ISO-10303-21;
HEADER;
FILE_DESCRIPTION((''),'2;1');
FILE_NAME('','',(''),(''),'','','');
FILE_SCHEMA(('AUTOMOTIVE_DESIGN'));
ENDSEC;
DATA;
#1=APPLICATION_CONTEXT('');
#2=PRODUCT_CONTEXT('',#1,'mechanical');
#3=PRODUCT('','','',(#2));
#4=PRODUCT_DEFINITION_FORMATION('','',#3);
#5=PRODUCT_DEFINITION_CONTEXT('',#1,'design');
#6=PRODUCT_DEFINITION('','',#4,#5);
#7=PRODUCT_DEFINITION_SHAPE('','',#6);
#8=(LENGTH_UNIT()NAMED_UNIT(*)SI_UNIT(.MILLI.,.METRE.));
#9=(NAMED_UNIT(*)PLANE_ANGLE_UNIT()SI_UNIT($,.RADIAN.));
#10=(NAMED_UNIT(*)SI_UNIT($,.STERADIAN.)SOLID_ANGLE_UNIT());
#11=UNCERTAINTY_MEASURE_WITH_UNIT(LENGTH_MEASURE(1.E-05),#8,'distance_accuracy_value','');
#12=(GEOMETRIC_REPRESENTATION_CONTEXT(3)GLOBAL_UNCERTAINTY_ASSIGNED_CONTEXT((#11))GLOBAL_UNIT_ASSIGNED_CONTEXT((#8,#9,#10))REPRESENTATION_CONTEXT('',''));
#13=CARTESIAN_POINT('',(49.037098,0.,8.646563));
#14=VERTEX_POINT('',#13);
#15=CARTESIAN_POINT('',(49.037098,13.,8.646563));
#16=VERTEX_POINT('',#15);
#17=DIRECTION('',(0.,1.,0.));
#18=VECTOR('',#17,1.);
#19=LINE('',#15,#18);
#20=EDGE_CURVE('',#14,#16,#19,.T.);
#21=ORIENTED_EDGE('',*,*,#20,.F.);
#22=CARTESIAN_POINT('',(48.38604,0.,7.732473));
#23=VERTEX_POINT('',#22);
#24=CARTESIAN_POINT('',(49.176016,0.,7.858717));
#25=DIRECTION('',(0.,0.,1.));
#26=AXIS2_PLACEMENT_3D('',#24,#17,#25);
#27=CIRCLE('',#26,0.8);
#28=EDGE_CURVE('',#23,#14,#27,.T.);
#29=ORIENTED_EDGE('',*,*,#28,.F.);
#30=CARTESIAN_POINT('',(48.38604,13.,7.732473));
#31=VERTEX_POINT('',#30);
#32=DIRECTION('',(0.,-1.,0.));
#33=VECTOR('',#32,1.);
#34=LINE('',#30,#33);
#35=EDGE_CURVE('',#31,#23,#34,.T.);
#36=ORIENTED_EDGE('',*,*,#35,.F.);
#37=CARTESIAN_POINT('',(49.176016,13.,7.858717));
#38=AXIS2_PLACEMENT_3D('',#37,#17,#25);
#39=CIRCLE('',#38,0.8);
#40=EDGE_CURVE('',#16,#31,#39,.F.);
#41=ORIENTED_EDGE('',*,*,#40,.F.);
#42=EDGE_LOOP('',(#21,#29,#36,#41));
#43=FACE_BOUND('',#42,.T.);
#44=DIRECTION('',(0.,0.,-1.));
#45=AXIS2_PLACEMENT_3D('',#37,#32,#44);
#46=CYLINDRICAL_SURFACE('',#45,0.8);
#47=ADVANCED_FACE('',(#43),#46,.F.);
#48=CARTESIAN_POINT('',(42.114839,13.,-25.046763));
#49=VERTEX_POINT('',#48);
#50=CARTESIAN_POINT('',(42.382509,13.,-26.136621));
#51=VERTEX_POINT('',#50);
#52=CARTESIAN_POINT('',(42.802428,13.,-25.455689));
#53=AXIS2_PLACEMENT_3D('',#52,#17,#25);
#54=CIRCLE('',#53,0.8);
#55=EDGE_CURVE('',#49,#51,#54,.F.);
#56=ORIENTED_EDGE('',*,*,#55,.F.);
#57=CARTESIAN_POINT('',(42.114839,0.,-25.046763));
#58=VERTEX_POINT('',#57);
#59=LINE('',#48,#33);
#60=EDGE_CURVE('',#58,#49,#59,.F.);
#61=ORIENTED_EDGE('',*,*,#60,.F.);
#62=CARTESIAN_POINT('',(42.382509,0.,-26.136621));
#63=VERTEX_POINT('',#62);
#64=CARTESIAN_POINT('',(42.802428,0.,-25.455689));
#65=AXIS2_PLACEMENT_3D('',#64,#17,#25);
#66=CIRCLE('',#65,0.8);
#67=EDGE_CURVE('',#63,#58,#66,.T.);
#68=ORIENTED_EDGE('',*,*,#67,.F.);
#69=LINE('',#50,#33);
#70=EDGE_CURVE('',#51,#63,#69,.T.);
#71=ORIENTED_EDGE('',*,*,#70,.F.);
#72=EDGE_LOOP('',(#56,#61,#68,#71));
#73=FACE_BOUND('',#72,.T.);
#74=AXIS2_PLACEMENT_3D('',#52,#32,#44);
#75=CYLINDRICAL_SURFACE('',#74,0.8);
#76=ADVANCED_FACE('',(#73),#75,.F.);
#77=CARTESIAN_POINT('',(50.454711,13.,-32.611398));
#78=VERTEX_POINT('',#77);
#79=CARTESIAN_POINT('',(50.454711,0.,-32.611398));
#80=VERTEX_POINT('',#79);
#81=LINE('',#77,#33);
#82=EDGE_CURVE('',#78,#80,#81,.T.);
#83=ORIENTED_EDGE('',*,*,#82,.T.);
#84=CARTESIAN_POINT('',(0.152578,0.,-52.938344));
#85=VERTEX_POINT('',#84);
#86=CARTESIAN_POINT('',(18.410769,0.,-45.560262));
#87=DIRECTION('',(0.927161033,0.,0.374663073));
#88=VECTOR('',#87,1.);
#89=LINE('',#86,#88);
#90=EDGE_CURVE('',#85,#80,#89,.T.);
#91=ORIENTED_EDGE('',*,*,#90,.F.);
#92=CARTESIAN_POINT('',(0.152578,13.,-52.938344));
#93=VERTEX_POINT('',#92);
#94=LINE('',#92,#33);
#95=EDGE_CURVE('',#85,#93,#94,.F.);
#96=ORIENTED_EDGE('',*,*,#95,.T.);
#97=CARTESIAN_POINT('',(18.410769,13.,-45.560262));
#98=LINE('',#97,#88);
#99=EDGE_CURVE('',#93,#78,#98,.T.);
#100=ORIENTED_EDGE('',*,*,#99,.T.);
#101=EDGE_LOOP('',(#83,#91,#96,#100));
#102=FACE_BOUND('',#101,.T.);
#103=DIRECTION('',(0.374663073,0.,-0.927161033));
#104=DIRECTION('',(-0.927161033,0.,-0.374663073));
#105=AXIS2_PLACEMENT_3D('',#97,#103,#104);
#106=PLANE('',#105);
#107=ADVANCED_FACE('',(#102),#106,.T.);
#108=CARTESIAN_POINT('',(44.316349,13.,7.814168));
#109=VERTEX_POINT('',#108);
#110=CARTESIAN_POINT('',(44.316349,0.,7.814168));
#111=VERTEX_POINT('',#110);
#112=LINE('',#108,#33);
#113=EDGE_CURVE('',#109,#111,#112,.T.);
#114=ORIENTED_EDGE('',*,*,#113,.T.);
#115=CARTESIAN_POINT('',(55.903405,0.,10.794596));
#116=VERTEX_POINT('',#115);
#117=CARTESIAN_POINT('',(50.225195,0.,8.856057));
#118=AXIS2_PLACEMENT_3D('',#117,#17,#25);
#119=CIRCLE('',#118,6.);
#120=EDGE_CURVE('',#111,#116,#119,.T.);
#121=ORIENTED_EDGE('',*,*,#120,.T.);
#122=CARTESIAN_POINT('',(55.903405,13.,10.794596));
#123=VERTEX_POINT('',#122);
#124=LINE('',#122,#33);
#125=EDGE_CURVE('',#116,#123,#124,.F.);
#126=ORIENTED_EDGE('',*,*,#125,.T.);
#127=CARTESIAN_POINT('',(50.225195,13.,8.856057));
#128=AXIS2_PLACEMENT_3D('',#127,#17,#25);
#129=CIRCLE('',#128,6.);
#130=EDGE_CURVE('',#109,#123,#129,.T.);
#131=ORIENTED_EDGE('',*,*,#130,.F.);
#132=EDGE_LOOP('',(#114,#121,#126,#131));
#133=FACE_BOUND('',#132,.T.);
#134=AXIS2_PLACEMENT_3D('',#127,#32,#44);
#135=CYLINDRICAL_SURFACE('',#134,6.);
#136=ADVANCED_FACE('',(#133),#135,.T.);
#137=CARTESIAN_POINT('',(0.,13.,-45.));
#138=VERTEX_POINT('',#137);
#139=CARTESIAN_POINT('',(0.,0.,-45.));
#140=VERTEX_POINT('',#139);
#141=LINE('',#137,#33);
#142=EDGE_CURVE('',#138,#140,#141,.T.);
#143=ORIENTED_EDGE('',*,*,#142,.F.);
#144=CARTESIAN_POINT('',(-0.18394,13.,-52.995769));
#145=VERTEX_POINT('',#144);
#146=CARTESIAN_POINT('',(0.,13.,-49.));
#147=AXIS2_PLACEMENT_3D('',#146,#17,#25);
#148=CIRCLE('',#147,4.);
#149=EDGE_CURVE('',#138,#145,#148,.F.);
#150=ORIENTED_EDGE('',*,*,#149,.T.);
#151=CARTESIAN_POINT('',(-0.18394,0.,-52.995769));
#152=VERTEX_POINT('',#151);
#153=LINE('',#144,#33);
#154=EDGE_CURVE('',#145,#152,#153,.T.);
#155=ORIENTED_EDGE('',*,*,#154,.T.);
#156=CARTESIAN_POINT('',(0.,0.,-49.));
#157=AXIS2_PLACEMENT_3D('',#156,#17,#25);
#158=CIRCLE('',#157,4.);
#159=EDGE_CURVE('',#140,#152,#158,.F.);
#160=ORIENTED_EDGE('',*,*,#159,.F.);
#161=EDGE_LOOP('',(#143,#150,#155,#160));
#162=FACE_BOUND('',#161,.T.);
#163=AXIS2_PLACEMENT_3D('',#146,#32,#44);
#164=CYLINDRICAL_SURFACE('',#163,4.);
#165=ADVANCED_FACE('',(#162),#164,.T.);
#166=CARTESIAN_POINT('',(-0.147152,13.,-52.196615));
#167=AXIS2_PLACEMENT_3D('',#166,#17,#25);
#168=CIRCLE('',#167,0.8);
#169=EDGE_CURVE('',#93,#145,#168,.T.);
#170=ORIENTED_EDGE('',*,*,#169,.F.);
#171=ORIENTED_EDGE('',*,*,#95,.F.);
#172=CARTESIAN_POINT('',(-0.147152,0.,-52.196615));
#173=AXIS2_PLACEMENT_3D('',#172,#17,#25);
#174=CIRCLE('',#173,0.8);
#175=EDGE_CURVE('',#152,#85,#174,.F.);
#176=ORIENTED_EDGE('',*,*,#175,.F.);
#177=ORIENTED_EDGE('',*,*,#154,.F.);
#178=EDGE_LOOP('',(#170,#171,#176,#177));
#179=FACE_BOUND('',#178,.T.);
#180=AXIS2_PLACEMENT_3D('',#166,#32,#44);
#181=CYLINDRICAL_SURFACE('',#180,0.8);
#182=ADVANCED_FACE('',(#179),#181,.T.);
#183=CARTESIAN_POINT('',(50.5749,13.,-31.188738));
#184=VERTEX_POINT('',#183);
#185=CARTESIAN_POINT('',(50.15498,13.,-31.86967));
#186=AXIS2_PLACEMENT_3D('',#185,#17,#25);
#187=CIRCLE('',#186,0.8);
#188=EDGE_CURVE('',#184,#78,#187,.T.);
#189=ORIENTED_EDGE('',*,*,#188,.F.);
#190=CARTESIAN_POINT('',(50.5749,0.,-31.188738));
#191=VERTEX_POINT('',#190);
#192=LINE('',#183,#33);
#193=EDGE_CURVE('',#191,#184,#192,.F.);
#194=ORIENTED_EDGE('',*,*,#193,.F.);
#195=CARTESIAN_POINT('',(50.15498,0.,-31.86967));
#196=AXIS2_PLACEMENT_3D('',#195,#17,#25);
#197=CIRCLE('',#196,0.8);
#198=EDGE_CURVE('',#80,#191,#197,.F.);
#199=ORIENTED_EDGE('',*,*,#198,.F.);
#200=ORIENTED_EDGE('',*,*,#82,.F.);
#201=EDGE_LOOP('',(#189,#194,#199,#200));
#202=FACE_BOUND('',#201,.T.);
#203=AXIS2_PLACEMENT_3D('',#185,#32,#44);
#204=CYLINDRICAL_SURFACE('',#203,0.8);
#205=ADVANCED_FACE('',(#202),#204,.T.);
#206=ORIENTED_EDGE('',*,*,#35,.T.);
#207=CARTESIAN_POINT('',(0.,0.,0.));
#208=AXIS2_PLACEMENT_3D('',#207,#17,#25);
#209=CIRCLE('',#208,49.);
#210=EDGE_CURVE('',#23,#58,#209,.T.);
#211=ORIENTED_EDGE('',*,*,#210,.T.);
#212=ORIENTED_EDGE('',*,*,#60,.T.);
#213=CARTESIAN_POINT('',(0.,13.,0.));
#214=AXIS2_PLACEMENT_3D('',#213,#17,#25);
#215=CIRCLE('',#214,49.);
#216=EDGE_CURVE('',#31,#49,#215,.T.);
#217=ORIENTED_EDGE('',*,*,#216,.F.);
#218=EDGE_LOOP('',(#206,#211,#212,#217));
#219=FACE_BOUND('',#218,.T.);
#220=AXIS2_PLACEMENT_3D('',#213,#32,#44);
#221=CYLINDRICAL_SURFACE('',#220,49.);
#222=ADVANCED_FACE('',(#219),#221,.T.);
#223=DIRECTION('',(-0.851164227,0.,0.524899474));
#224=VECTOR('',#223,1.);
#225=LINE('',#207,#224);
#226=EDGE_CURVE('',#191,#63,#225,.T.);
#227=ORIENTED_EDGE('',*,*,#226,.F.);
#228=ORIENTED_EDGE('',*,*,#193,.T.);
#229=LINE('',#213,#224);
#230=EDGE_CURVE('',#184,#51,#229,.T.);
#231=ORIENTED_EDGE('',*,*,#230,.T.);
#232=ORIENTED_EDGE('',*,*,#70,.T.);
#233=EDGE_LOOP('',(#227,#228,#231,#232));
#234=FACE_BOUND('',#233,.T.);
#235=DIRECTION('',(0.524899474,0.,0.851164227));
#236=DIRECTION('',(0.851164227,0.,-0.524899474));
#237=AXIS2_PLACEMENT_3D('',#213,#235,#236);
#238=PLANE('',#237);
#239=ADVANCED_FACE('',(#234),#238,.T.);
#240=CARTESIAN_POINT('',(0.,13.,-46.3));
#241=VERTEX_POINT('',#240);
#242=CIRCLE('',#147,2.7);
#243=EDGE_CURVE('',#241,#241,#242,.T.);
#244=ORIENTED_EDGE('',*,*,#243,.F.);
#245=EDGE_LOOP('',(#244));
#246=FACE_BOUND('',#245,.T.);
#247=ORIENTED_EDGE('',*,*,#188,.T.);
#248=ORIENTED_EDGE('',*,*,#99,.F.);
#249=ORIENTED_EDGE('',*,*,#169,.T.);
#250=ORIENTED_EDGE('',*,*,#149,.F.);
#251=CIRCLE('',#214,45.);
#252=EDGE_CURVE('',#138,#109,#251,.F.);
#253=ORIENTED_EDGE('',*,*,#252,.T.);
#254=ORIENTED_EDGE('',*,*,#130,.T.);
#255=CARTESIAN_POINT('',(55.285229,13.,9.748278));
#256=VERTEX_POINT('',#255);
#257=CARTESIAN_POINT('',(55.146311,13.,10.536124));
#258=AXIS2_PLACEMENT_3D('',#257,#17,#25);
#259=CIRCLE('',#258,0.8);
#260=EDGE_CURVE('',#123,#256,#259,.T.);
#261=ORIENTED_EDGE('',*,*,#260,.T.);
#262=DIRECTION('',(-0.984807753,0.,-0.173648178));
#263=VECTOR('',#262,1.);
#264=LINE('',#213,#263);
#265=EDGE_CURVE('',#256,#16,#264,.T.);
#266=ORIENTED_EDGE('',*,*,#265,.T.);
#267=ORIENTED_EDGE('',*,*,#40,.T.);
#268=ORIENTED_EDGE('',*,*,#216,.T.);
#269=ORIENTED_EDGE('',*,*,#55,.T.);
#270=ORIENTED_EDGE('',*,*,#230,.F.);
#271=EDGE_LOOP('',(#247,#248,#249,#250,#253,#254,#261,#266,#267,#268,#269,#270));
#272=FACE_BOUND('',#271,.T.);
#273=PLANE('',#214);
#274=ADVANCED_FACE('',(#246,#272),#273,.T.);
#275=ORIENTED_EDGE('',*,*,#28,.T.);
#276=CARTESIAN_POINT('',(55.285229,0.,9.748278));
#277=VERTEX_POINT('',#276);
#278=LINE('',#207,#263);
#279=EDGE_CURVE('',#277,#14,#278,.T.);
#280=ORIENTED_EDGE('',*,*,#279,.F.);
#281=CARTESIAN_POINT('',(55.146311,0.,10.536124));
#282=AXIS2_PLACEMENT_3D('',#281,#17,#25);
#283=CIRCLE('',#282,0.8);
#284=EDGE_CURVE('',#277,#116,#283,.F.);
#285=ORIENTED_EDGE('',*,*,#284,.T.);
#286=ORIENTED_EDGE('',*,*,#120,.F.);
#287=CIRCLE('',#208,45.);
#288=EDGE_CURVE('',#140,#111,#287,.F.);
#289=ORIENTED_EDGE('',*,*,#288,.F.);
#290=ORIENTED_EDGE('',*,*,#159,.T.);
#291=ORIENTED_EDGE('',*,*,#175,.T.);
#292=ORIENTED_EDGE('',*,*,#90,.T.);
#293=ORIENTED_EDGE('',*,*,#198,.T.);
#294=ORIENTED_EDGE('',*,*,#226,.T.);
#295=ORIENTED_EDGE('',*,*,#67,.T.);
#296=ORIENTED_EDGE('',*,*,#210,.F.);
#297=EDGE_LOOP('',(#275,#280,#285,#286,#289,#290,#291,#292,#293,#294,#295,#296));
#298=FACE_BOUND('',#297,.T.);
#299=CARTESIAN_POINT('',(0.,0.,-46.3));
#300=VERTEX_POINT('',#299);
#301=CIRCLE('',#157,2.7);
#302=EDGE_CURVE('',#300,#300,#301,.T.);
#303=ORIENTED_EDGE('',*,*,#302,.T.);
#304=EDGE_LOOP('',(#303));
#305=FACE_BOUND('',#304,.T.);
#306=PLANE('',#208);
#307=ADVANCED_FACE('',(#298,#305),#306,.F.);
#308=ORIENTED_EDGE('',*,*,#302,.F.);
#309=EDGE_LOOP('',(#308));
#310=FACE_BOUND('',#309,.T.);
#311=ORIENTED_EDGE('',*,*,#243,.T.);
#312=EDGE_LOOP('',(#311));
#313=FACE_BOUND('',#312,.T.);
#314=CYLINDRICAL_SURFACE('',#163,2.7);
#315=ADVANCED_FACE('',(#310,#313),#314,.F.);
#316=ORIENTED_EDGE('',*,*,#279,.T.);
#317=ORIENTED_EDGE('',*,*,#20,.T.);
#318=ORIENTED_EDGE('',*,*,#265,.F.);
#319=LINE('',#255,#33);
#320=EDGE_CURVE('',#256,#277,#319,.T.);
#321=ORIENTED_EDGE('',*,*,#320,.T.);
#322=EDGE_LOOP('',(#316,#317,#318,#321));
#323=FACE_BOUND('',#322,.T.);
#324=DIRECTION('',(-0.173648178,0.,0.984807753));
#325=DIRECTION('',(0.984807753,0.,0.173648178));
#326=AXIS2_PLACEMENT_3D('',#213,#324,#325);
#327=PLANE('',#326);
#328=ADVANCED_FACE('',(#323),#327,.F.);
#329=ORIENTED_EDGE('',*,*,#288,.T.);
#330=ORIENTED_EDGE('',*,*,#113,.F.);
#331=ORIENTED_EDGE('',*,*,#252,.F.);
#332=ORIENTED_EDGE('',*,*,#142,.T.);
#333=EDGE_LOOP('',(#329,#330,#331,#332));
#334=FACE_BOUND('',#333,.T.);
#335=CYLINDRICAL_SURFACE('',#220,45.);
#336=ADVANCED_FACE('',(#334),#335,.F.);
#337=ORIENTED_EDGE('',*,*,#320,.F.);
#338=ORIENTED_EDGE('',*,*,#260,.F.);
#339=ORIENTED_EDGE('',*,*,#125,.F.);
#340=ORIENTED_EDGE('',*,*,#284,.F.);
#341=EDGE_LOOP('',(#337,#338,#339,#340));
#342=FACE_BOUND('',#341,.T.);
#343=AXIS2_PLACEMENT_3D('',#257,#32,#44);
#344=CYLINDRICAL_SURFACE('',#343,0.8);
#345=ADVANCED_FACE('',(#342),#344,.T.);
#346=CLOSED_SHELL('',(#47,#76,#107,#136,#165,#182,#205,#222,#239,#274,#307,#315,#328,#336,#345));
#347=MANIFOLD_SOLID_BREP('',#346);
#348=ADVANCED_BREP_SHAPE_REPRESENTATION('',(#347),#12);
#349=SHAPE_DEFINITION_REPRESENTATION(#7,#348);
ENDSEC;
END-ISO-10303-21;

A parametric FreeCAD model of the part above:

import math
import FreeCAD as App
import Part
import Sketcher
from FreeCAD import Vector
Q = App.Units.Quantity


def edges_at(feature, points):
    """Names of the edges that pass closest to the given points."""
    edges = feature.Shape.Edges
    near = lambda p: min(range(len(edges)), key=lambda i: edges[i].distToShape(Part.Vertex(*p))[0])
    return sorted({f"Edge{near(p) + 1}" for p in points})

doc = App.newDocument("Part")
body = doc.addObject("PartDesign::Body", "Body")

sketch1 = body.newObject("Sketcher::SketchObject", "Sketch")
sketch1.AttachmentSupport = (doc.getObject("XZ_Plane"), [""])
sketch1.MapMode = "FlatFace"
sketch1.addGeometry(Part.ArcOfCircle(Part.Circle(Vector(0, -49, 0), Vector(0, 0, 1), 4), math.radians(90), math.radians(270)), False)
sketch1.addGeometry(Part.ArcOfCircle(Part.Circle(Vector(0, 0, 0), Vector(0, 0, 1), 45), math.radians(-90), math.radians(10)), False)
sketch1.addGeometry(Part.ArcOfCircle(Part.Circle(Vector(50.225195, 8.856057, 0), Vector(0, 0, 1), 6), math.radians(10), math.radians(190)), False)
sketch1.addGeometry(Part.LineSegment(Vector(56.134042, 9.897946, 0), Vector(48.25558, 8.508761, 0)), False)
sketch1.addGeometry(Part.ArcOfCircle(Part.Circle(Vector(0, 0, 0), Vector(0, 0, 1), 49), math.radians(-31.661476), math.radians(10)), False)
sketch1.addGeometry(Part.LineSegment(Vector(41.707047, -25.720074, 0), Vector(51.921018, -32.018868, 0)), False)
sketch1.addGeometry(Part.LineSegment(Vector(51.921018, -32.018868, 0), Vector(0, -53, 0)), False)
sketch1.addGeometry(Part.ArcOfCircle(Part.Circle(Vector(0, -49, 0), Vector(0, 0, 1), 2.7), math.radians(1.578757), math.radians(270)), False)
sketch1.addGeometry(Part.ArcOfCircle(Part.Circle(Vector(0, -49, 0), Vector(0, 0, 1), 2.7), math.radians(-90), math.radians(0)), False)
sketch1.addGeometry(Part.ArcOfCircle(Part.Circle(Vector(0.000002, -49, 0), Vector(0, 0, 1), 2.699998), math.radians(-0.000001), math.radians(1.578758)), False)
sketch1.addConstraint(Sketcher.Constraint("Tangent", 0, 1, 1, 1))
sketch1.addConstraint(Sketcher.Constraint("Tangent", 1, 2, 2, 2))
sketch1.addConstraint(Sketcher.Constraint("Coincident", 2, 1, 3, 1))
sketch1.addConstraint(Sketcher.Constraint("Coincident", 3, 2, 4, 2))
sketch1.addConstraint(Sketcher.Constraint("Coincident", 4, 1, 5, 1))
sketch1.addConstraint(Sketcher.Constraint("Coincident", 5, 2, 6, 1))
sketch1.addConstraint(Sketcher.Constraint("Coincident", 6, 2, 0, 2))
sketch1.addConstraint(Sketcher.Constraint("Tangent", 7, 2, 8, 1))
sketch1.addConstraint(Sketcher.Constraint("Tangent", 8, 2, 9, 1))
sketch1.addConstraint(Sketcher.Constraint("Tangent", 9, 2, 7, 1))
sketch1.addConstraint(Sketcher.Constraint("Coincident", 1, 3, -1, 1))
sketch1.addConstraint(Sketcher.Constraint("Coincident", 4, 3, -1, 1))
sketch1.addConstraint(Sketcher.Constraint("Coincident", 7, 3, 0, 3))
sketch1.addConstraint(Sketcher.Constraint("PointOnObject", 0, 3, -2))
sketch1.addConstraint(Sketcher.Constraint("PointOnObject", 6, 2, -2))
sketch1.addConstraint(Sketcher.Constraint("PointOnObject", 7, 2, -2))
sketch1.addConstraint(Sketcher.Constraint("Horizontal", 9, 3, 8, 2))
sketch1.addConstraint(Sketcher.Constraint("Radius", 0, 4.0))
sketch1.addConstraint(Sketcher.Constraint("Radius", 1, 45.0))
sketch1.addConstraint(Sketcher.Constraint("Radius", 2, 6.0))
sketch1.addConstraint(Sketcher.Constraint("Radius", 4, 49.0))
sketch1.addConstraint(Sketcher.Constraint("Radius", 7, 2.7))
sketch1.addConstraint(Sketcher.Constraint("Angle", 3, Q("-170 deg")))
sketch1.addConstraint(Sketcher.Constraint("Distance", 5, 12.0))
sketch1.addConstraint(Sketcher.Constraint("Distance", 6, 56.0))
sketch1.addConstraint(Sketcher.Constraint("DistanceX", 4, 1, 1, 2, 2.609302))
sketch1.addConstraint(Sketcher.Constraint("DistanceX", -1, 1, 1, 2, 44.316349))
sketch1.addConstraint(Sketcher.Constraint("DistanceX", -1, 1, 2, 1, 56.134042))
sketch1.addConstraint(Sketcher.Constraint("DistanceX", -1, 1, 9, 2, 2.698975))
pad1 = body.newObject("PartDesign::Pad", "Pad")
pad1.Profile = sketch1
pad1.Length = 13
pad1.Reversed = True
doc.recompute()

fillet = body.newObject("PartDesign::Fillet", "Fillet")
fillet.Base = (pad1, edges_at(pad1, [
    (0, 6.5, -53),
    (51.921, 6.5, -32.019),
    (41.707, 6.5, -25.72),
    (48.256, 6.5, 8.509),
    (56.134, 6.5, 9.898),
]))
fillet.Radius = 0.8

doc.recompute()
